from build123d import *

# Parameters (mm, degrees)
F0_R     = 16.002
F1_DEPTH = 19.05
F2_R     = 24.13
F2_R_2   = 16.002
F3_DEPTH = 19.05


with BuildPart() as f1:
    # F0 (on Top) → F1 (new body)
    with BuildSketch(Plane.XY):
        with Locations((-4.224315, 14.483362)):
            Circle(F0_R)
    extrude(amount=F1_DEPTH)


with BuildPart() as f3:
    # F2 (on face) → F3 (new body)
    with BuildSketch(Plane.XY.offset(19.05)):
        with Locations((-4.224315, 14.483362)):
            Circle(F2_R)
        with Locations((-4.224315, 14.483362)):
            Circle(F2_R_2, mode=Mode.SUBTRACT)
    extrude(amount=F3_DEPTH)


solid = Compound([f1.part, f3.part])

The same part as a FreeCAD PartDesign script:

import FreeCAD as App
import Part
import Sketcher
Q = App.Units.Quantity

doc = App.newDocument("Part")
body = doc.addObject("PartDesign::Body", "Body")

# Sketch on XY plane
sketch1 = body.newObject("Sketcher::SketchObject", "Sketch")
sketch1.AttachmentSupport = (doc.getObject("XY_Plane"), [""])
sketch1.MapMode = "FlatFace"
sketch1.addGeometry(Part.Circle(App.Vector(-4, 14, 0), App.Vector(0, 0, 1), 16), False)
sketch1.addConstraint([
    Sketcher.Constraint("Diameter", 0, Q("1.26 in")),
    Sketcher.Constraint("DistanceX", 0, 3, -1, 1, Q("4.224315 mm")),
    Sketcher.Constraint("DistanceY", -1, 1, 0, 3, Q("14.483362 mm")),
])
pad1 = body.newObject("PartDesign::Pad", "Pad")
pad1.Profile = sketch1
pad1.Length = Q("0.75 in")
body2 = doc.addObject("PartDesign::Body", "Body001")

# Sketch on XY plane
sketch2 = body2.newObject("Sketcher::SketchObject", "Sketch001")
sketch2.AttachmentSupport = (doc.getObject("XY_Plane001"), [""])
sketch2.MapMode = "FlatFace"
sketch2.AttachmentOffset = App.Placement(App.Vector(0, 0, 0.75 * 25.4), App.Rotation())
sketch2.addGeometry([
    Part.Circle(App.Vector(-4, 14, 0), App.Vector(0, 0, 1), 24),
    Part.Circle(App.Vector(-4, 14, 0), App.Vector(0, 0, 1), 16),
], False)
sketch2.addConstraint([
    Sketcher.Constraint("Coincident", 1, 3, 0, 3),
    Sketcher.Constraint("Diameter", 0, Q("1.9 in")),
    Sketcher.Constraint("Diameter", 1, Q("1.26 in")),
    Sketcher.Constraint("DistanceX", 0, 3, -1, 1, Q("4.224315 mm")),
    Sketcher.Constraint("DistanceY", -1, 1, 0, 3, Q("14.483362 mm")),
])
pad2 = body2.newObject("PartDesign::Pad", "Pad001")
pad2.Profile = sketch2
pad2.Length = Q("0.75 in")

doc.recompute()
